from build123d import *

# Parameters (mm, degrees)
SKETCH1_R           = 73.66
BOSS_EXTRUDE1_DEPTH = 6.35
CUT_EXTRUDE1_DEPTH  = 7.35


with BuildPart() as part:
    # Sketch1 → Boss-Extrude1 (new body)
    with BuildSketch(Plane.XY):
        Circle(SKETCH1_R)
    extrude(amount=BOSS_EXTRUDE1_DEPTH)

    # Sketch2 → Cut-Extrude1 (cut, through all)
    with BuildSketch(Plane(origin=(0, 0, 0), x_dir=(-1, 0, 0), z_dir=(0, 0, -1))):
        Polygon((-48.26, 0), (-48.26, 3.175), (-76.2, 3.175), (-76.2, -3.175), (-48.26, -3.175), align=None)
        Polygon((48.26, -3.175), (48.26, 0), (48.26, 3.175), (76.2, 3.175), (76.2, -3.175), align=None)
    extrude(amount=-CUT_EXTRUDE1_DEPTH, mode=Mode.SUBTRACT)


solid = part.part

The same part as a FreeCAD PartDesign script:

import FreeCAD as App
import Part
import Sketcher

V = App.Vector
Q = App.Units.Quantity


def add_polygon(sketch, points):
    """Adds a closed chain of lines whose ends are joined by coincident constraints."""
    first, n = sketch.GeometryCount, len(points)
    for a, b in zip(points, points[1:] + points[:1]):
        sketch.addGeometry(Part.LineSegment(App.Vector(*a, 0), App.Vector(*b, 0)), False)
    for i in range(n):
        sketch.addConstraint(Sketcher.Constraint("Coincident", first + i, 2, first + (i + 1) % n, 1))

doc = App.newDocument("Part")
body = doc.addObject("PartDesign::Body", "Body")

# Sketch on XY plane
sketch1 = body.newObject("Sketcher::SketchObject", "Sketch")
sketch1.AttachmentSupport = (doc.getObject("XY_Plane"), [""])
sketch1.MapMode = "FlatFace"
sketch1.addGeometry(Part.Circle(V(0, 0, 0), V(0, 0, 1), 73.66), False)
sketch1.addConstraint([
    Sketcher.Constraint("Coincident", 0, 3, -1, 1),
    Sketcher.Constraint("Diameter", 0, Q("5.8 in")),
])
pad1 = body.newObject("PartDesign::Pad", "Pad")
pad1.Profile = sketch1
pad1.Length = Q("0.25 in")

# Sketch on XY plane
sketch2 = body.newObject("Sketcher::SketchObject", "Sketch001")
sketch2.AttachmentSupport = (doc.getObject("XY_Plane"), [""])
sketch2.MapMode = "FlatFace"
add_polygon(sketch2, [(48.26, 3.175), (76.2, 3.175), (76.2, -3.175), (48.26, -3.175)])  # lines 0-3
add_polygon(sketch2, [(-48.26, 3.175), (-48.26, -3.175), (-76.2, -3.175), (-76.2, 3.175)])  # lines 4-7
sketch2.addConstraint([
    Sketcher.Constraint("Horizontal", 0),
    Sketcher.Constraint("Vertical", 1),
    Sketcher.Constraint("Horizontal", 2),
    Sketcher.Constraint("Vertical", 3),
    Sketcher.Constraint("Vertical", 4),
    Sketcher.Constraint("Horizontal", 5),
    Sketcher.Constraint("Vertical", 6),
    Sketcher.Constraint("Horizontal", 7),
    Sketcher.Constraint("Symmetric", 3, 2, 4, 2, -1, 1),
    Sketcher.Constraint("Symmetric", 1, 2, 6, 2, -1, 1),
    Sketcher.Constraint("Horizontal", 2, 2, 4, 2),
    Sketcher.Constraint("DistanceX", 0, 1, 0, 2, Q("1.1 in")),
    Sketcher.Constraint("DistanceX", -1, 1, 0, 2, Q("3 in")),
    Sketcher.Constraint("DistanceY", 1, 2, 1, 1, Q("0.25 in")),
])
pocket1 = body.newObject("PartDesign::Pocket", "Pocket")
pocket1.Profile = sketch2
pocket1.Type = "ThroughAll"
pocket1.Reversed = True

doc.recompute()
